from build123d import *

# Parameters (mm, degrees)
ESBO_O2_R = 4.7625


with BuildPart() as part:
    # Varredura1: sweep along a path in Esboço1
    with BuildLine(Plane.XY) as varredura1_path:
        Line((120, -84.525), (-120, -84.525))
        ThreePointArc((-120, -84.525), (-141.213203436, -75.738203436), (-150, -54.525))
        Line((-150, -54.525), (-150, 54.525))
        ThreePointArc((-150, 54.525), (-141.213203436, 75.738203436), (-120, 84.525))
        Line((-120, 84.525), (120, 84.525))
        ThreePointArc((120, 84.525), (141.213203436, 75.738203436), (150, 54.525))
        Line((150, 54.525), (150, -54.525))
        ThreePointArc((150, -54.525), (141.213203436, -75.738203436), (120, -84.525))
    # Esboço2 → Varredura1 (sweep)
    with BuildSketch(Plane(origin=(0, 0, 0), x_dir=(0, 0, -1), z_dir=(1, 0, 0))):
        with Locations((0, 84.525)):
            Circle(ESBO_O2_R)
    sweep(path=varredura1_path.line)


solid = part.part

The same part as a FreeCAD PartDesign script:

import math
import FreeCAD as App
import Part
import Sketcher
Q = App.Units.Quantity

doc = App.newDocument("Part")
body = doc.addObject("PartDesign::Body", "Body")

sketch1 = body.newObject("Sketcher::SketchObject", "Sketch")
sketch1.AttachmentSupport = (doc.getObject("YZ_Plane"), [""])
sketch1.MapMode = "FlatFace"
sketch1.addGeometry(Part.Circle(App.Vector(84.525, 0, 0), App.Vector(0, 0, 1), 4.7625), False)
sketch1.addConstraint([
    Sketcher.Constraint("PointOnObject", 0, 3, -1),
    Sketcher.Constraint("Diameter", 0, Q("9.525 mm")),
    Sketcher.Constraint("DistanceX", -1, 1, 0, 3, Q("84.525 mm")),
])

sketch2 = body.newObject("Sketcher::SketchObject", "Sketch001")
sketch2.AttachmentSupport = (doc.getObject("XY_Plane"), [""])
sketch2.MapMode = "FlatFace"
sketch2.addGeometry([
    Part.LineSegment(App.Vector(120, -84.525, 0), App.Vector(-120, -84.525, 0)),
    Part.ArcOfCircle(Part.Circle(App.Vector(-120, -54.525, 0), App.Vector(0, 0, 1), 30), math.radians(180), math.radians(270)),
    Part.LineSegment(App.Vector(-150, -54.525, 0), App.Vector(-150, 54.525, 0)),
    Part.ArcOfCircle(Part.Circle(App.Vector(-120, 54.525, 0), App.Vector(0, 0, 1), 30), math.radians(90), math.radians(180)),
    Part.LineSegment(App.Vector(-120, 84.525, 0), App.Vector(120, 84.525, 0)),
    Part.ArcOfCircle(Part.Circle(App.Vector(120, 54.525, 0), App.Vector(0, 0, 1), 30), math.radians(0), math.radians(90)),
    Part.LineSegment(App.Vector(150, 54.525, 0), App.Vector(150, -54.525, 0)),
    Part.ArcOfCircle(Part.Circle(App.Vector(120, -54.525, 0), App.Vector(0, 0, 1), 30), math.radians(-90), math.radians(0)),
], False)
sketch2.addConstraint([
    Sketcher.Constraint("Tangent", 0, 2, 1, 2),
    Sketcher.Constraint("Tangent", 1, 1, 2, 1),
    Sketcher.Constraint("Tangent", 2, 2, 3, 2),
    Sketcher.Constraint("Tangent", 3, 1, 4, 1),
    Sketcher.Constraint("Tangent", 4, 2, 5, 2),
    Sketcher.Constraint("Tangent", 5, 1, 6, 1),
    Sketcher.Constraint("Tangent", 6, 2, 7, 2),
    Sketcher.Constraint("Tangent", 7, 1, 0, 1),
    Sketcher.Constraint("Horizontal", 0),
    Sketcher.Constraint("Vertical", 2),
    Sketcher.Constraint("Horizontal", 4),
    Sketcher.Constraint("Vertical", 6),
    Sketcher.Constraint("Equal", 1, 3),
    Sketcher.Constraint("Equal", 3, 5),
    Sketcher.Constraint("Equal", 5, 7),
    Sketcher.Constraint("Symmetric", 1, 3, 5, 3, -1, 1),
    Sketcher.Constraint("Radius", 1, Q("30 mm")),
    Sketcher.Constraint("DistanceX", 0, 2, 0, 1, Q("240 mm")),
    Sketcher.Constraint("DistanceY", 2, 1, 2, 2, Q("109.05 mm")),
])
doc.recompute()

additivepipe = body.newObject("PartDesign::AdditivePipe", "AdditivePipe")
additivepipe.Profile = sketch1
additivepipe.Spine = (sketch2, ["Edge1", "Edge2", "Edge3", "Edge4", "Edge5", "Edge6", "Edge7", "Edge8"])

doc.recompute()
